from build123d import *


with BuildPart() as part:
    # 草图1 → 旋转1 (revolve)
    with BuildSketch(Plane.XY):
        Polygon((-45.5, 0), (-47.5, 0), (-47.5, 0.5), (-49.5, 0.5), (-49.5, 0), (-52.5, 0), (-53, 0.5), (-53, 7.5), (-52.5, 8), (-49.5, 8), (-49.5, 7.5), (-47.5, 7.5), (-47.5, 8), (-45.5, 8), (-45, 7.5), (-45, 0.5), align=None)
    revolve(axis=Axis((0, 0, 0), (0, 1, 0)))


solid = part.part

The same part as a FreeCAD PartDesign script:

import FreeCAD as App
import Part
import Sketcher
from FreeCAD import Vector

doc = App.newDocument("Part")
body = doc.addObject("PartDesign::Body", "Body")

# Sketch on XY plane
sketch1 = doc.addObject("Sketcher::SketchObject", "Sketch")
body.addObject(sketch1)
sketch1.AttachmentSupport = (doc.XY_Plane, [""])
sketch1.MapMode = "FlatFace"
sketch1.addGeometry([
    Part.LineSegment(Vector(-47.5, 0, 0), Vector(-45.5, 0, 0)),  # 0
    Part.LineSegment(Vector(-45.5, 0, 0), Vector(-45, 0.5, 0)),  # 1
    Part.LineSegment(Vector(-45, 0.5, 0), Vector(-45, 7.5, 0)),  # 2
    Part.LineSegment(Vector(-45, 7.5, 0), Vector(-45.5, 8, 0)),  # 3
    Part.LineSegment(Vector(-45.5, 8, 0), Vector(-47.5, 8, 0)),  # 4
    Part.LineSegment(Vector(-47.5, 8, 0), Vector(-47.5, 7.5, 0)),  # 5
    Part.LineSegment(Vector(-47.5, 7.5, 0), Vector(-49.5, 7.5, 0)),  # 6
    Part.LineSegment(Vector(-49.5, 7.5, 0), Vector(-49.5, 8, 0)),  # 7
    Part.LineSegment(Vector(-49.5, 8, 0), Vector(-52.5, 8, 0)),  # 8
    Part.LineSegment(Vector(-52.5, 8, 0), Vector(-53, 7.5, 0)),  # 9
    Part.LineSegment(Vector(-53, 7.5, 0), Vector(-53, 0.5, 0)),  # 10
    Part.LineSegment(Vector(-53, 0.5, 0), Vector(-52.5, 0, 0)),  # 11
    Part.LineSegment(Vector(-52.5, 0, 0), Vector(-49.5, 0, 0)),  # 12
    Part.LineSegment(Vector(-49.5, 0, 0), Vector(-49.5, 0.5, 0)),  # 13
    Part.LineSegment(Vector(-49.5, 0.5, 0), Vector(-47.5, 0.5, 0)),  # 14
    Part.LineSegment(Vector(-47.5, 0.5, 0), Vector(-47.5, 0, 0)),  # 15
], False)
sketch1.addConstraint([
    Sketcher.Constraint("Coincident", 0, 2, 1, 1),
    Sketcher.Constraint("Coincident", 1, 2, 2, 1),
    Sketcher.Constraint("Coincident", 2, 2, 3, 1),
    Sketcher.Constraint("Coincident", 3, 2, 4, 1),
    Sketcher.Constraint("Coincident", 4, 2, 5, 1),
    Sketcher.Constraint("Coincident", 5, 2, 6, 1),
    Sketcher.Constraint("Coincident", 6, 2, 7, 1),
    Sketcher.Constraint("Coincident", 7, 2, 8, 1),
    Sketcher.Constraint("Coincident", 8, 2, 9, 1),
    Sketcher.Constraint("Coincident", 9, 2, 10, 1),
    Sketcher.Constraint("Coincident", 10, 2, 11, 1),
    Sketcher.Constraint("Coincident", 11, 2, 12, 1),
    Sketcher.Constraint("Coincident", 12, 2, 13, 1),
    Sketcher.Constraint("Coincident", 13, 2, 14, 1),
    Sketcher.Constraint("Coincident", 14, 2, 15, 1),
    Sketcher.Constraint("Coincident", 15, 2, 0, 1),
    Sketcher.Constraint("Horizontal", 0),
    Sketcher.Constraint("Vertical", 2),
    Sketcher.Constraint("Horizontal", 4),
    Sketcher.Constraint("Vertical", 5),
    Sketcher.Constraint("Horizontal", 6),
    Sketcher.Constraint("Vertical", 7),
    Sketcher.Constraint("Horizontal", 8),
    Sketcher.Constraint("Vertical", 10),
    Sketcher.Constraint("Horizontal", 12),
    Sketcher.Constraint("Vertical", 13),
    Sketcher.Constraint("Horizontal", 14),
    Sketcher.Constraint("Vertical", 15),
    Sketcher.Constraint("PointOnObject", 0, 2, -1),
    Sketcher.Constraint("PointOnObject", 11, 2, -1),
    Sketcher.Constraint("Perpendicular", 1, 3),
    Sketcher.Constraint("Perpendicular", 3, 9),
    Sketcher.Constraint("Perpendicular", 9, 11),
    Sketcher.Constraint("Horizontal", 2, 2, 5, 2),
    Sketcher.Constraint("Horizontal", 4, 2, 7, 2),
    Sketcher.Constraint("Horizontal", 6, 2, 9, 2),
    Sketcher.Constraint("Horizontal", 1, 2, 10, 2),
    Sketcher.Constraint("Horizontal", 10, 2, 13, 2),
    Sketcher.Constraint("Vertical", 0, 2, 3, 2),
    Sketcher.Constraint("Vertical", 8, 2, 11, 2),
    Sketcher.Constraint("Vertical", 7, 2, 12, 2),
    Sketcher.Constraint("Vertical", 5, 2, 14, 2),
    Sketcher.Constraint("Equal", 4, 6),
    Sketcher.Constraint("DistanceX", 0, 1, 0, 2, 2.0),
    Sketcher.Constraint("DistanceX", 8, 2, 8, 1, 3.0),
    Sketcher.Constraint("DistanceY", 2, 1, 2, 2, 7.0),
    Sketcher.Constraint("DistanceY", 5, 2, 5, 1, 0.5),
    Sketcher.Constraint("DistanceX", 1, 2, -1, 1, 45.0),
])
revolution = doc.addObject("PartDesign::Revolution", "Revolution")
body.addObject(revolution)
revolution.Profile = sketch1
revolution.ReferenceAxis = (sketch1, ["V_Axis"])
revolution.Angle = 360

doc.recompute()
